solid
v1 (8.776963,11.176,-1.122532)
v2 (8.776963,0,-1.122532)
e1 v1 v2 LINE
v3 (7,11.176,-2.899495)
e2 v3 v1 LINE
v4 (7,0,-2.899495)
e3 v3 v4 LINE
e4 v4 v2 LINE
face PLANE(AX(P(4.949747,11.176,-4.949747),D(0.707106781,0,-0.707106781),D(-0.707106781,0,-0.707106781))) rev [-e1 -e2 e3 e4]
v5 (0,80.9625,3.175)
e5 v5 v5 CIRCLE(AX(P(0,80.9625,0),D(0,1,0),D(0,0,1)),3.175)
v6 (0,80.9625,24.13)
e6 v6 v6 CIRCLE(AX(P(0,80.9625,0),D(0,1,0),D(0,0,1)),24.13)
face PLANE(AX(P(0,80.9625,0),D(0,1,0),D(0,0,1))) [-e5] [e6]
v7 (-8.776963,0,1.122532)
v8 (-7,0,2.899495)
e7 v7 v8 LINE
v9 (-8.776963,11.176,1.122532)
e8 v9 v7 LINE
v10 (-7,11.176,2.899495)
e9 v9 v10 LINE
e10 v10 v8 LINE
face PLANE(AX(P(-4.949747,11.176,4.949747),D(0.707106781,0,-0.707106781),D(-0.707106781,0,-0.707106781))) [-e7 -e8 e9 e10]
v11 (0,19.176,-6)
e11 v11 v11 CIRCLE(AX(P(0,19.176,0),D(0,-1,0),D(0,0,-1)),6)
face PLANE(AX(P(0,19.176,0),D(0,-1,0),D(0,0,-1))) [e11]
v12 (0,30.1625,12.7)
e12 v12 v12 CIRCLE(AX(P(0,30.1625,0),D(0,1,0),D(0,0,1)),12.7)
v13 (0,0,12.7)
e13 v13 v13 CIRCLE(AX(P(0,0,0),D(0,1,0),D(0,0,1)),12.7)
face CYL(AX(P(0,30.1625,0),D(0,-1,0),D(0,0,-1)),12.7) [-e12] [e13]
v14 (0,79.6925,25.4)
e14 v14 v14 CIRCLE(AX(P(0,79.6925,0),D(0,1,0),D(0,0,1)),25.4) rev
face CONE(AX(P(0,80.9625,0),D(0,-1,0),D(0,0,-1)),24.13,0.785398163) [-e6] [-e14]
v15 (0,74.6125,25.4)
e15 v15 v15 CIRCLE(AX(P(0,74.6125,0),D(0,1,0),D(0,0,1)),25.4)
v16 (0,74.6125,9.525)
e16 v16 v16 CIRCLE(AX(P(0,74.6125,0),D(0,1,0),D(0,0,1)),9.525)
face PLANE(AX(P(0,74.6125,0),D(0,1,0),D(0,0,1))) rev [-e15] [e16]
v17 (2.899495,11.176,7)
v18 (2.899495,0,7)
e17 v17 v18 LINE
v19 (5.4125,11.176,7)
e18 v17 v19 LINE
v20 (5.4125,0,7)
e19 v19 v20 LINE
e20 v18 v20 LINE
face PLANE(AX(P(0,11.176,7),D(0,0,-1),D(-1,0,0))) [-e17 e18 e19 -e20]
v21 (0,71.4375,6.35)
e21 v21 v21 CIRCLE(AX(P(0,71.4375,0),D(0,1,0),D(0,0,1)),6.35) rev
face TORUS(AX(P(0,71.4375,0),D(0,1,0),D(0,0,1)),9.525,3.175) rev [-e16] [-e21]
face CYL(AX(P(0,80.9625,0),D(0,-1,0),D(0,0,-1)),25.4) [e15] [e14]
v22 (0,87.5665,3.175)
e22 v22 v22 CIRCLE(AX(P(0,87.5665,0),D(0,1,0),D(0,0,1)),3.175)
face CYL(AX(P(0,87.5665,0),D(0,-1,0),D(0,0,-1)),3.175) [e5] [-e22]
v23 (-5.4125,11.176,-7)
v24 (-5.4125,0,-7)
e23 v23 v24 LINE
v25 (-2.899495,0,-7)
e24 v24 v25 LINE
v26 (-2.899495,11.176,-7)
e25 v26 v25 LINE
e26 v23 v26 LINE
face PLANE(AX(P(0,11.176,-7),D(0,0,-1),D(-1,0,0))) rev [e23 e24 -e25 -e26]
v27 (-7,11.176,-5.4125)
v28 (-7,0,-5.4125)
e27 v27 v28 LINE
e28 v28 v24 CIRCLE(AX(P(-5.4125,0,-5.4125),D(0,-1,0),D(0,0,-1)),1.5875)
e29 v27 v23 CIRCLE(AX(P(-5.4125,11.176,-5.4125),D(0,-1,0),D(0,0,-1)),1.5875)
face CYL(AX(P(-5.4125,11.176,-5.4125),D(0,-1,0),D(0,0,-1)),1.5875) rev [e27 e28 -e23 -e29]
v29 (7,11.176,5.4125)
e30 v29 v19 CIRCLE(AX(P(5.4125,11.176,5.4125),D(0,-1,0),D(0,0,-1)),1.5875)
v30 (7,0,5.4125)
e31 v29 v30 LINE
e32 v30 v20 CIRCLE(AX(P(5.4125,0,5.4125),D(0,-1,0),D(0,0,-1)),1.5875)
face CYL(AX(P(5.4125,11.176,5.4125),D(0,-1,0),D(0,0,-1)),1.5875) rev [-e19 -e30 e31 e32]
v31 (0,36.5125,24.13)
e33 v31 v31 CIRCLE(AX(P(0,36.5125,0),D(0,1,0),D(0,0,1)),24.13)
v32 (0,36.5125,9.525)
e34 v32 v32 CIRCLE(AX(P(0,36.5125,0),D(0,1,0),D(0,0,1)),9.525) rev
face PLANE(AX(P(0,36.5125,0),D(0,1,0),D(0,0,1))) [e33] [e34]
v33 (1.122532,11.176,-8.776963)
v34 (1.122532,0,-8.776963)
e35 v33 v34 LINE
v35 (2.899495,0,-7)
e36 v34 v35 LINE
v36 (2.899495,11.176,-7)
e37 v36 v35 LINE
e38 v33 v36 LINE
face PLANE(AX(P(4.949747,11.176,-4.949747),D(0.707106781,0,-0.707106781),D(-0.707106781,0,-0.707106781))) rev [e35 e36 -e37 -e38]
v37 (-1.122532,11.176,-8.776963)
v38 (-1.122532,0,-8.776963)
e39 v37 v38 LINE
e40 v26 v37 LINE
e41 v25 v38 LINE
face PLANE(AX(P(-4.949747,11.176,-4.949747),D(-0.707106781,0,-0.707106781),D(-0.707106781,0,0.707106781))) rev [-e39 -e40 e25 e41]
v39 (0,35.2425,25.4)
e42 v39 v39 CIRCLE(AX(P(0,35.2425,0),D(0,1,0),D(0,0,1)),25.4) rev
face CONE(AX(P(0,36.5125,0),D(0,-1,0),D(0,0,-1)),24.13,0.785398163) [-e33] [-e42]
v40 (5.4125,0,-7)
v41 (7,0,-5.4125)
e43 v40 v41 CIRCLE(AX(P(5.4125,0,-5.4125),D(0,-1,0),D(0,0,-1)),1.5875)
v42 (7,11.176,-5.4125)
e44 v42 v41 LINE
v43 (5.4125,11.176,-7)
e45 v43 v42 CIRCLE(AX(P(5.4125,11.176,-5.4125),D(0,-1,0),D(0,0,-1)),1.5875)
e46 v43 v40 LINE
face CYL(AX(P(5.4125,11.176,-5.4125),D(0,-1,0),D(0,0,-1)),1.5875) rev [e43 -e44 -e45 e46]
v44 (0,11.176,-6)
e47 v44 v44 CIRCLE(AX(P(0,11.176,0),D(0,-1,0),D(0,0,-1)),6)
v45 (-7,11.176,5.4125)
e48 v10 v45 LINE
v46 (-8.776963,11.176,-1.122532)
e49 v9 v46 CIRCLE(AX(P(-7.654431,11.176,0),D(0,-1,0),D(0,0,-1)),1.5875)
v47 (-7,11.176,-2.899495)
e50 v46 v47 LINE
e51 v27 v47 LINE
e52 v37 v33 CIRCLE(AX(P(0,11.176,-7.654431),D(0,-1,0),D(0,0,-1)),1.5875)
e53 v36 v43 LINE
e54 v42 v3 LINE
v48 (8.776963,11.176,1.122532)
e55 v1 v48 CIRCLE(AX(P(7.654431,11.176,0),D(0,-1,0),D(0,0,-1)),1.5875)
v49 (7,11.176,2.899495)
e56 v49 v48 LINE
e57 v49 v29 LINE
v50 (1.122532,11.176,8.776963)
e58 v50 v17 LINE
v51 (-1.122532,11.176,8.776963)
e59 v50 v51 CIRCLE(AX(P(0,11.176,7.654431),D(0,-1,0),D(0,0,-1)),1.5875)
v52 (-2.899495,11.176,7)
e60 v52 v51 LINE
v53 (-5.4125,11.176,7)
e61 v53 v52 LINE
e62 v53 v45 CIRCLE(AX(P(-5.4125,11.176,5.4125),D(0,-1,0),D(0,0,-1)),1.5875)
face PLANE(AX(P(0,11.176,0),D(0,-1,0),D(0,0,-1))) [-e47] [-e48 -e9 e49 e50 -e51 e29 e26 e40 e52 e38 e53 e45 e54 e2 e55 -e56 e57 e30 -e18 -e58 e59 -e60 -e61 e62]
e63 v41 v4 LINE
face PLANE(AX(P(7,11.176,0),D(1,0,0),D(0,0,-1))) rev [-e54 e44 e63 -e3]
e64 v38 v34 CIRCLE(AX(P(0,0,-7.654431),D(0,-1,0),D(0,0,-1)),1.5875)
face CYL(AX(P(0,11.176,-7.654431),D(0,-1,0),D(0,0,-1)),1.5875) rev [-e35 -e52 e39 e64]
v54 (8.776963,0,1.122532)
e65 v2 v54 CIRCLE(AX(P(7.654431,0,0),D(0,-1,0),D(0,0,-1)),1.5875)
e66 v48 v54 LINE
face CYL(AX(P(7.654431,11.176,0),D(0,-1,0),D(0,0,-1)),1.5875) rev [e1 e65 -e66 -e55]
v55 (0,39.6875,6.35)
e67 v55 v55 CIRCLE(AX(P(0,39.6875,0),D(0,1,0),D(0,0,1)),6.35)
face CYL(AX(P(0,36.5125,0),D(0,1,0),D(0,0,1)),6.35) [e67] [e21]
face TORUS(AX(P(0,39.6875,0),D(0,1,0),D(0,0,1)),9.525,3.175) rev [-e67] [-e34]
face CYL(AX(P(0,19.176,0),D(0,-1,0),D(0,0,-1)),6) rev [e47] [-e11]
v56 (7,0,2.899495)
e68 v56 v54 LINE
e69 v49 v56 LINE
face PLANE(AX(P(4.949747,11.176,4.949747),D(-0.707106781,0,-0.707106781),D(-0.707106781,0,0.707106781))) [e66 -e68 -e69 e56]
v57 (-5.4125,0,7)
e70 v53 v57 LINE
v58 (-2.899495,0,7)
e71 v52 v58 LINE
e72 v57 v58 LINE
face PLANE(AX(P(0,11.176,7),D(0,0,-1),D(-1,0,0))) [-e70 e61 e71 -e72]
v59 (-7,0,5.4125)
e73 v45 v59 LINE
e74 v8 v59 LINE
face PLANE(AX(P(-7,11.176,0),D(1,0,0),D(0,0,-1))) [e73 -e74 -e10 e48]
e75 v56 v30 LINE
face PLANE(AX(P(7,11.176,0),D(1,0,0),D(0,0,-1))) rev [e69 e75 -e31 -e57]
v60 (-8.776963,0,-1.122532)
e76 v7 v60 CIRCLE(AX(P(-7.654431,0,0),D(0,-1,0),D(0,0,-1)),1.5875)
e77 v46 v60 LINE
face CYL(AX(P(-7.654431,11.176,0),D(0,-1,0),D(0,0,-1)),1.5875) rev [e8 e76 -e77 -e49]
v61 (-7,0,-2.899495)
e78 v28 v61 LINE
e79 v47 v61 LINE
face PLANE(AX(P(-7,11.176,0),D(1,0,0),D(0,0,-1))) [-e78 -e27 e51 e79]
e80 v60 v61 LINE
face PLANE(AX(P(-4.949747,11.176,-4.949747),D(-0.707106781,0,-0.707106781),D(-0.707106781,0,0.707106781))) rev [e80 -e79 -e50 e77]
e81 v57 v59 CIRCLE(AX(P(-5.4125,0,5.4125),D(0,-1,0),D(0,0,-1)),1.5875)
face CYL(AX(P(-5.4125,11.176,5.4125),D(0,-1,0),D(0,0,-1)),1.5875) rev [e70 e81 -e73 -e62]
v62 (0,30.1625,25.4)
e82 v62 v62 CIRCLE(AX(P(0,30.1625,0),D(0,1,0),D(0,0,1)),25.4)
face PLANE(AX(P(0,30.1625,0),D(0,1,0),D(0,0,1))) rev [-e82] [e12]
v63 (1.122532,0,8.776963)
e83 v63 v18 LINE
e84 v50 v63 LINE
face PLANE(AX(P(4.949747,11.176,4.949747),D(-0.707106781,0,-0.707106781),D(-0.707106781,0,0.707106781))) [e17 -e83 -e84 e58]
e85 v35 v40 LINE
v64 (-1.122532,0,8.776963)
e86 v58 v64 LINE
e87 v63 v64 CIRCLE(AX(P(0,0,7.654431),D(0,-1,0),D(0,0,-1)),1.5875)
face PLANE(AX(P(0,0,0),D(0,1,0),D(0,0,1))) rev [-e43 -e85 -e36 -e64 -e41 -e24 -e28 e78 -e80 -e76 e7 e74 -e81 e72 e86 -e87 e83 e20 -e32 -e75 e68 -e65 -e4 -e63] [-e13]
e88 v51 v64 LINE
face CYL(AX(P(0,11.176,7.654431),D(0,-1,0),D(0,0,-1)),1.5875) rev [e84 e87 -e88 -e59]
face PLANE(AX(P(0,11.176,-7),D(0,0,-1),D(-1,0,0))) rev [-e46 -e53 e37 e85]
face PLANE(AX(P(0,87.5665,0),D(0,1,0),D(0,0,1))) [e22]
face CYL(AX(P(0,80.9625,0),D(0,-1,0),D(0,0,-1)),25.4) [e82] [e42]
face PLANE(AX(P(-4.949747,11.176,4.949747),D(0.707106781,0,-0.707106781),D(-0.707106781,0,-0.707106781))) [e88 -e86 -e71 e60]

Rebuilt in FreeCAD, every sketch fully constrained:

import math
import FreeCAD as App
import Part
import Sketcher

V = App.Vector
Q = App.Units.Quantity


def edges_at(feature, points):
    """Names of the edges that pass closest to the given points."""
    edges = feature.Shape.Edges
    near = lambda p: min(range(len(edges)), key=lambda i: edges[i].distToShape(Part.Vertex(*p))[0])
    return sorted({f"Edge{near(p) + 1}" for p in points})

doc = App.newDocument("Part")
body = doc.addObject("PartDesign::Body", "Body")

# Sketch on XZ plane
sketch1 = body.newObject("Sketcher::SketchObject", "Sketch")
sketch1.AttachmentSupport = (doc.getObject("XZ_Plane"), [""])
sketch1.MapMode = "FlatFace"
sketch1.addGeometry(Part.Circle(V(0, 0, 0), V(0, 0, 1), 13), False)
sketch1.addConstraint([
    Sketcher.Constraint("Coincident", 0, 3, -1, 1),
    Sketcher.Constraint("Diameter", 0, Q("1 in")),
])
pad1 = body.newObject("PartDesign::Pad", "Pad")
pad1.Profile = sketch1
pad1.Length = Q("1.1875 in")
pad1.Reversed = True

# Sketch on XZ plane
sketch2 = body.newObject("Sketcher::SketchObject", "Sketch001")
sketch2.AttachmentSupport = (doc.getObject("XZ_Plane"), [""])
sketch2.MapMode = "FlatFace"
sketch2.AttachmentOffset = App.Placement(V(0, 0, -1.1875 * 25.4), App.Rotation())
sketch2.addGeometry(Part.Circle(V(0, 0, 0), V(0, 0, 1), 25), False)
sketch2.addConstraint([
    Sketcher.Constraint("Coincident", 0, 3, -1, 1),
    Sketcher.Constraint("Diameter", 0, Q("2 in")),
])
pad2 = body.newObject("PartDesign::Pad", "Pad001")
pad2.Profile = sketch2
pad2.Length = Q("2 in")
pad2.Reversed = True

# Sketch on XZ plane
sketch3 = body.newObject("Sketcher::SketchObject", "Sketch002")
sketch3.AttachmentSupport = (doc.getObject("XZ_Plane"), [""])
sketch3.MapMode = "FlatFace"
sketch3.addGeometry([
    Part.LineSegment(V(-7, 2.9, 0), V(-8.8, 1.1, 0)),  # 0
    Part.ArcOfCircle(Part.Circle(V(-7.7, 0, 0), V(0, 0, 1), 1.6), math.radians(135), math.radians(225)),  # 1
    Part.LineSegment(V(-8.8, -1.1, 0), V(-7, -2.9, 0)),  # 2
    Part.LineSegment(V(-7, -2.9, 0), V(-7, -5.4, 0)),  # 3
    Part.ArcOfCircle(Part.Circle(V(-5.4, -5.4, 0), V(0, 0, 1), 1.6), math.radians(180), math.radians(270)),  # 4
    Part.LineSegment(V(-5.4, -7, 0), V(-2.9, -7, 0)),  # 5
    Part.LineSegment(V(-2.9, -7, 0), V(-1.1, -8.8, 0)),  # 6
    Part.ArcOfCircle(Part.Circle(V(0, -7.7, 0), V(0, 0, 1), 1.6), math.radians(-135), math.radians(-45)),  # 7
    Part.LineSegment(V(1.1, -8.8, 0), V(2.9, -7, 0)),  # 8
    Part.LineSegment(V(2.9, -7, 0), V(5.4, -7, 0)),  # 9
    Part.ArcOfCircle(Part.Circle(V(5.4, -5.4, 0), V(0, 0, 1), 1.6), math.radians(-90), math.radians(0)),  # 10
    Part.LineSegment(V(7, -5.4, 0), V(7, -2.9, 0)),  # 11
    Part.LineSegment(V(7, -2.9, 0), V(8.8, -1.1, 0)),  # 12
    Part.ArcOfCircle(Part.Circle(V(7.7, 0, 0), V(0, 0, 1), 1.6), math.radians(-45), math.radians(45)),  # 13
    Part.LineSegment(V(8.8, 1.1, 0), V(7, 2.9, 0)),  # 14
    Part.LineSegment(V(7, 2.9, 0), V(7, 5.4, 0)),  # 15
    Part.ArcOfCircle(Part.Circle(V(5.4, 5.4, 0), V(0, 0, 1), 1.6), math.radians(0), math.radians(90)),  # 16
    Part.LineSegment(V(5.4, 7, 0), V(2.9, 7, 0)),  # 17
    Part.LineSegment(V(2.9, 7, 0), V(1.1, 8.8, 0)),  # 18
    Part.ArcOfCircle(Part.Circle(V(0, 7.7, 0), V(0, 0, 1), 1.6), math.radians(45), math.radians(135)),  # 19
    Part.LineSegment(V(-1.1, 8.8, 0), V(-2.9, 7, 0)),  # 20
    Part.LineSegment(V(-2.9, 7, 0), V(-5.4, 7, 0)),  # 21
    Part.ArcOfCircle(Part.Circle(V(-5.4, 5.4, 0), V(0, 0, 1), 1.6), math.radians(90), math.radians(180)),  # 22
    Part.LineSegment(V(-7, 5.4, 0), V(-7, 2.9, 0)),  # 23
], False)
sketch3.addConstraint([
    Sketcher.Constraint("Tangent", 0, 2, 1, 1),
    Sketcher.Constraint("Tangent", 1, 2, 2, 1),
    Sketcher.Constraint("Coincident", 2, 2, 3, 1),
    Sketcher.Constraint("Tangent", 3, 2, 4, 1),
    Sketcher.Constraint("Tangent", 4, 2, 5, 1),
    Sketcher.Constraint("Coincident", 5, 2, 6, 1),
    Sketcher.Constraint("Tangent", 6, 2, 7, 1),
    Sketcher.Constraint("Tangent", 7, 2, 8, 1),
    Sketcher.Constraint("Coincident", 8, 2, 9, 1),
    Sketcher.Constraint("Tangent", 9, 2, 10, 1),
    Sketcher.Constraint("Tangent", 10, 2, 11, 1),
    Sketcher.Constraint("Coincident", 11, 2, 12, 1),
    Sketcher.Constraint("Tangent", 12, 2, 13, 1),
    Sketcher.Constraint("Tangent", 13, 2, 14, 1),
    Sketcher.Constraint("Coincident", 14, 2, 15, 1),
    Sketcher.Constraint("Tangent", 15, 2, 16, 1),
    Sketcher.Constraint("Tangent", 16, 2, 17, 1),
    Sketcher.Constraint("Coincident", 17, 2, 18, 1),
    Sketcher.Constraint("Tangent", 18, 2, 19, 1),
    Sketcher.Constraint("Tangent", 19, 2, 20, 1),
    Sketcher.Constraint("Coincident", 20, 2, 21, 1),
    Sketcher.Constraint("Tangent", 21, 2, 22, 1),
    Sketcher.Constraint("Tangent", 22, 2, 23, 1),
    Sketcher.Constraint("Coincident", 23, 2, 0, 1),
    Sketcher.Constraint("Vertical", 3),
    Sketcher.Constraint("Horizontal", 5),
    Sketcher.Constraint("Horizontal", 9),
    Sketcher.Constraint("Vertical", 11),
    Sketcher.Constraint("Vertical", 15),
    Sketcher.Constraint("Horizontal", 17),
    Sketcher.Constraint("Horizontal", 21),
    Sketcher.Constraint("Vertical", 23),
    Sketcher.Constraint("Equal", 1, 4),
    Sketcher.Constraint("Equal", 4, 7),
    Sketcher.Constraint("Equal", 7, 10),
    Sketcher.Constraint("Equal", 10, 13),
    Sketcher.Constraint("Equal", 13, 16),
    Sketcher.Constraint("Equal", 16, 19),
    Sketcher.Constraint("Equal", 19, 22),
    Sketcher.Constraint("Symmetric", 1, 3, 13, 3, -1, 1),
    Sketcher.Constraint("Symmetric", 4, 3, 16, 3, -1, 1),
    Sketcher.Constraint("Symmetric", 7, 3, 19, 3, -1, 1),
    Sketcher.Constraint("Symmetric", 10, 3, 22, 3, -1, 1),
    Sketcher.Constraint("Symmetric", 4, 3, 10, 3, -2),
    Sketcher.Constraint("Symmetric", 6, 2, 7, 2, -2),
    Sketcher.Constraint("Symmetric", 1, 2, 12, 2, -2),
    Sketcher.Constraint("Perpendicular", 0, 2),
    Sketcher.Constraint("Parallel", 2, 6),
    Sketcher.Constraint("Perpendicular", 6, 8),
    Sketcher.Constraint("Perpendicular", 12, 14),
    Sketcher.Constraint("Parallel", 14, 18),
    Sketcher.Constraint("Perpendicular", 18, 20),
    Sketcher.Constraint("Equal", 21, 3),
    Sketcher.Constraint("Equal", 2, 6),
    Sketcher.Constraint("Radius", 1, Q("0.0625 in")),
    Sketcher.Constraint("DistanceX", 4, 3, -1, 1, Q("5.4125 mm")),
    Sketcher.Constraint("DistanceY", 0, 2, 19, 3, Q("6.531899 mm")),
])
pocket1 = body.newObject("PartDesign::Pocket", "Pocket")
pocket1.Profile = sketch3
pocket1.Length = Q("0.44 in")

# Sketch on XZ plane
sketch4 = body.newObject("Sketcher::SketchObject", "Sketch003")
sketch4.AttachmentSupport = (doc.getObject("XZ_Plane"), [""])
sketch4.MapMode = "FlatFace"
sketch4.AttachmentOffset = App.Placement(V(0, 0, -0.44 * 25.4), App.Rotation())
sketch4.addGeometry(Part.Circle(V(0, 0, 0), V(0, 0, 1), 6), False)
sketch4.addConstraint([
    Sketcher.Constraint("Coincident", 0, 3, -1, 1),
    Sketcher.Constraint("Diameter", 0, Q("12 mm")),
])
pocket2 = body.newObject("PartDesign::Pocket", "Pocket001")
pocket2.Profile = sketch4
pocket2.Length = 8

# Sketch on XZ plane
sketch5 = body.newObject("Sketcher::SketchObject", "Sketch004")
sketch5.AttachmentSupport = (doc.getObject("XZ_Plane"), [""])
sketch5.MapMode = "FlatFace"
sketch5.AttachmentOffset = App.Placement(V(0, 0, -3.1875 * 25.4), App.Rotation())
sketch5.addGeometry(Part.Circle(V(0, 0, 0), V(0, 0, 1), 3.2), False)
sketch5.addConstraint([
    Sketcher.Constraint("Coincident", 0, 3, -1, 1),
    Sketcher.Constraint("Diameter", 0, Q("0.25 in")),
])
pad3 = body.newObject("PartDesign::Pad", "Pad002")
pad3.Profile = sketch5
pad3.Length = Q("0.26 in")
pad3.Reversed = True

# Sketch on XZ plane
sketch6 = body.newObject("Sketcher::SketchObject", "Sketch005")
sketch6.AttachmentSupport = (doc.getObject("XZ_Plane"), [""])
sketch6.MapMode = "FlatFace"
sketch6.AttachmentOffset = App.Placement(V(0, 0, -2.9375 * 25.4), App.Rotation())
sketch6.addGeometry([
    Part.Circle(V(0, 0, 0), V(0, 0, 1), 25),
    Part.Circle(V(0, 0, 0), V(0, 0, 1), 6),
], False)
sketch6.addConstraint([
    Sketcher.Constraint("Coincident", 0, 3, -1, 1),
    Sketcher.Constraint("Coincident", 1, 3, -1, 1),
    Sketcher.Constraint("Diameter", 0, Q("2 in")),
    Sketcher.Constraint("Diameter", 1, Q("0.5 in")),
])
pocket3 = body.newObject("PartDesign::Pocket", "Pocket002")
pocket3.Profile = sketch6
pocket3.Length = Q("1.5 in")
pocket3.Reversed = True
doc.recompute()

fillet = body.newObject("PartDesign::Fillet", "Fillet")
fillet.Base = (pocket3, edges_at(pocket3, [(-6.35, 36.513, 0), (-6.35, 74.612, 0)]))
fillet.Radius = Q("0.125 in")
doc.recompute()

chamfer = body.newObject("PartDesign::Chamfer", "Chamfer")
chamfer.Base = (fillet, edges_at(fillet, [(-25.4, 80.963, 0), (-25.4, 36.513, 0)]))
chamfer.Size = Q("0.05 in")

doc.recompute()
